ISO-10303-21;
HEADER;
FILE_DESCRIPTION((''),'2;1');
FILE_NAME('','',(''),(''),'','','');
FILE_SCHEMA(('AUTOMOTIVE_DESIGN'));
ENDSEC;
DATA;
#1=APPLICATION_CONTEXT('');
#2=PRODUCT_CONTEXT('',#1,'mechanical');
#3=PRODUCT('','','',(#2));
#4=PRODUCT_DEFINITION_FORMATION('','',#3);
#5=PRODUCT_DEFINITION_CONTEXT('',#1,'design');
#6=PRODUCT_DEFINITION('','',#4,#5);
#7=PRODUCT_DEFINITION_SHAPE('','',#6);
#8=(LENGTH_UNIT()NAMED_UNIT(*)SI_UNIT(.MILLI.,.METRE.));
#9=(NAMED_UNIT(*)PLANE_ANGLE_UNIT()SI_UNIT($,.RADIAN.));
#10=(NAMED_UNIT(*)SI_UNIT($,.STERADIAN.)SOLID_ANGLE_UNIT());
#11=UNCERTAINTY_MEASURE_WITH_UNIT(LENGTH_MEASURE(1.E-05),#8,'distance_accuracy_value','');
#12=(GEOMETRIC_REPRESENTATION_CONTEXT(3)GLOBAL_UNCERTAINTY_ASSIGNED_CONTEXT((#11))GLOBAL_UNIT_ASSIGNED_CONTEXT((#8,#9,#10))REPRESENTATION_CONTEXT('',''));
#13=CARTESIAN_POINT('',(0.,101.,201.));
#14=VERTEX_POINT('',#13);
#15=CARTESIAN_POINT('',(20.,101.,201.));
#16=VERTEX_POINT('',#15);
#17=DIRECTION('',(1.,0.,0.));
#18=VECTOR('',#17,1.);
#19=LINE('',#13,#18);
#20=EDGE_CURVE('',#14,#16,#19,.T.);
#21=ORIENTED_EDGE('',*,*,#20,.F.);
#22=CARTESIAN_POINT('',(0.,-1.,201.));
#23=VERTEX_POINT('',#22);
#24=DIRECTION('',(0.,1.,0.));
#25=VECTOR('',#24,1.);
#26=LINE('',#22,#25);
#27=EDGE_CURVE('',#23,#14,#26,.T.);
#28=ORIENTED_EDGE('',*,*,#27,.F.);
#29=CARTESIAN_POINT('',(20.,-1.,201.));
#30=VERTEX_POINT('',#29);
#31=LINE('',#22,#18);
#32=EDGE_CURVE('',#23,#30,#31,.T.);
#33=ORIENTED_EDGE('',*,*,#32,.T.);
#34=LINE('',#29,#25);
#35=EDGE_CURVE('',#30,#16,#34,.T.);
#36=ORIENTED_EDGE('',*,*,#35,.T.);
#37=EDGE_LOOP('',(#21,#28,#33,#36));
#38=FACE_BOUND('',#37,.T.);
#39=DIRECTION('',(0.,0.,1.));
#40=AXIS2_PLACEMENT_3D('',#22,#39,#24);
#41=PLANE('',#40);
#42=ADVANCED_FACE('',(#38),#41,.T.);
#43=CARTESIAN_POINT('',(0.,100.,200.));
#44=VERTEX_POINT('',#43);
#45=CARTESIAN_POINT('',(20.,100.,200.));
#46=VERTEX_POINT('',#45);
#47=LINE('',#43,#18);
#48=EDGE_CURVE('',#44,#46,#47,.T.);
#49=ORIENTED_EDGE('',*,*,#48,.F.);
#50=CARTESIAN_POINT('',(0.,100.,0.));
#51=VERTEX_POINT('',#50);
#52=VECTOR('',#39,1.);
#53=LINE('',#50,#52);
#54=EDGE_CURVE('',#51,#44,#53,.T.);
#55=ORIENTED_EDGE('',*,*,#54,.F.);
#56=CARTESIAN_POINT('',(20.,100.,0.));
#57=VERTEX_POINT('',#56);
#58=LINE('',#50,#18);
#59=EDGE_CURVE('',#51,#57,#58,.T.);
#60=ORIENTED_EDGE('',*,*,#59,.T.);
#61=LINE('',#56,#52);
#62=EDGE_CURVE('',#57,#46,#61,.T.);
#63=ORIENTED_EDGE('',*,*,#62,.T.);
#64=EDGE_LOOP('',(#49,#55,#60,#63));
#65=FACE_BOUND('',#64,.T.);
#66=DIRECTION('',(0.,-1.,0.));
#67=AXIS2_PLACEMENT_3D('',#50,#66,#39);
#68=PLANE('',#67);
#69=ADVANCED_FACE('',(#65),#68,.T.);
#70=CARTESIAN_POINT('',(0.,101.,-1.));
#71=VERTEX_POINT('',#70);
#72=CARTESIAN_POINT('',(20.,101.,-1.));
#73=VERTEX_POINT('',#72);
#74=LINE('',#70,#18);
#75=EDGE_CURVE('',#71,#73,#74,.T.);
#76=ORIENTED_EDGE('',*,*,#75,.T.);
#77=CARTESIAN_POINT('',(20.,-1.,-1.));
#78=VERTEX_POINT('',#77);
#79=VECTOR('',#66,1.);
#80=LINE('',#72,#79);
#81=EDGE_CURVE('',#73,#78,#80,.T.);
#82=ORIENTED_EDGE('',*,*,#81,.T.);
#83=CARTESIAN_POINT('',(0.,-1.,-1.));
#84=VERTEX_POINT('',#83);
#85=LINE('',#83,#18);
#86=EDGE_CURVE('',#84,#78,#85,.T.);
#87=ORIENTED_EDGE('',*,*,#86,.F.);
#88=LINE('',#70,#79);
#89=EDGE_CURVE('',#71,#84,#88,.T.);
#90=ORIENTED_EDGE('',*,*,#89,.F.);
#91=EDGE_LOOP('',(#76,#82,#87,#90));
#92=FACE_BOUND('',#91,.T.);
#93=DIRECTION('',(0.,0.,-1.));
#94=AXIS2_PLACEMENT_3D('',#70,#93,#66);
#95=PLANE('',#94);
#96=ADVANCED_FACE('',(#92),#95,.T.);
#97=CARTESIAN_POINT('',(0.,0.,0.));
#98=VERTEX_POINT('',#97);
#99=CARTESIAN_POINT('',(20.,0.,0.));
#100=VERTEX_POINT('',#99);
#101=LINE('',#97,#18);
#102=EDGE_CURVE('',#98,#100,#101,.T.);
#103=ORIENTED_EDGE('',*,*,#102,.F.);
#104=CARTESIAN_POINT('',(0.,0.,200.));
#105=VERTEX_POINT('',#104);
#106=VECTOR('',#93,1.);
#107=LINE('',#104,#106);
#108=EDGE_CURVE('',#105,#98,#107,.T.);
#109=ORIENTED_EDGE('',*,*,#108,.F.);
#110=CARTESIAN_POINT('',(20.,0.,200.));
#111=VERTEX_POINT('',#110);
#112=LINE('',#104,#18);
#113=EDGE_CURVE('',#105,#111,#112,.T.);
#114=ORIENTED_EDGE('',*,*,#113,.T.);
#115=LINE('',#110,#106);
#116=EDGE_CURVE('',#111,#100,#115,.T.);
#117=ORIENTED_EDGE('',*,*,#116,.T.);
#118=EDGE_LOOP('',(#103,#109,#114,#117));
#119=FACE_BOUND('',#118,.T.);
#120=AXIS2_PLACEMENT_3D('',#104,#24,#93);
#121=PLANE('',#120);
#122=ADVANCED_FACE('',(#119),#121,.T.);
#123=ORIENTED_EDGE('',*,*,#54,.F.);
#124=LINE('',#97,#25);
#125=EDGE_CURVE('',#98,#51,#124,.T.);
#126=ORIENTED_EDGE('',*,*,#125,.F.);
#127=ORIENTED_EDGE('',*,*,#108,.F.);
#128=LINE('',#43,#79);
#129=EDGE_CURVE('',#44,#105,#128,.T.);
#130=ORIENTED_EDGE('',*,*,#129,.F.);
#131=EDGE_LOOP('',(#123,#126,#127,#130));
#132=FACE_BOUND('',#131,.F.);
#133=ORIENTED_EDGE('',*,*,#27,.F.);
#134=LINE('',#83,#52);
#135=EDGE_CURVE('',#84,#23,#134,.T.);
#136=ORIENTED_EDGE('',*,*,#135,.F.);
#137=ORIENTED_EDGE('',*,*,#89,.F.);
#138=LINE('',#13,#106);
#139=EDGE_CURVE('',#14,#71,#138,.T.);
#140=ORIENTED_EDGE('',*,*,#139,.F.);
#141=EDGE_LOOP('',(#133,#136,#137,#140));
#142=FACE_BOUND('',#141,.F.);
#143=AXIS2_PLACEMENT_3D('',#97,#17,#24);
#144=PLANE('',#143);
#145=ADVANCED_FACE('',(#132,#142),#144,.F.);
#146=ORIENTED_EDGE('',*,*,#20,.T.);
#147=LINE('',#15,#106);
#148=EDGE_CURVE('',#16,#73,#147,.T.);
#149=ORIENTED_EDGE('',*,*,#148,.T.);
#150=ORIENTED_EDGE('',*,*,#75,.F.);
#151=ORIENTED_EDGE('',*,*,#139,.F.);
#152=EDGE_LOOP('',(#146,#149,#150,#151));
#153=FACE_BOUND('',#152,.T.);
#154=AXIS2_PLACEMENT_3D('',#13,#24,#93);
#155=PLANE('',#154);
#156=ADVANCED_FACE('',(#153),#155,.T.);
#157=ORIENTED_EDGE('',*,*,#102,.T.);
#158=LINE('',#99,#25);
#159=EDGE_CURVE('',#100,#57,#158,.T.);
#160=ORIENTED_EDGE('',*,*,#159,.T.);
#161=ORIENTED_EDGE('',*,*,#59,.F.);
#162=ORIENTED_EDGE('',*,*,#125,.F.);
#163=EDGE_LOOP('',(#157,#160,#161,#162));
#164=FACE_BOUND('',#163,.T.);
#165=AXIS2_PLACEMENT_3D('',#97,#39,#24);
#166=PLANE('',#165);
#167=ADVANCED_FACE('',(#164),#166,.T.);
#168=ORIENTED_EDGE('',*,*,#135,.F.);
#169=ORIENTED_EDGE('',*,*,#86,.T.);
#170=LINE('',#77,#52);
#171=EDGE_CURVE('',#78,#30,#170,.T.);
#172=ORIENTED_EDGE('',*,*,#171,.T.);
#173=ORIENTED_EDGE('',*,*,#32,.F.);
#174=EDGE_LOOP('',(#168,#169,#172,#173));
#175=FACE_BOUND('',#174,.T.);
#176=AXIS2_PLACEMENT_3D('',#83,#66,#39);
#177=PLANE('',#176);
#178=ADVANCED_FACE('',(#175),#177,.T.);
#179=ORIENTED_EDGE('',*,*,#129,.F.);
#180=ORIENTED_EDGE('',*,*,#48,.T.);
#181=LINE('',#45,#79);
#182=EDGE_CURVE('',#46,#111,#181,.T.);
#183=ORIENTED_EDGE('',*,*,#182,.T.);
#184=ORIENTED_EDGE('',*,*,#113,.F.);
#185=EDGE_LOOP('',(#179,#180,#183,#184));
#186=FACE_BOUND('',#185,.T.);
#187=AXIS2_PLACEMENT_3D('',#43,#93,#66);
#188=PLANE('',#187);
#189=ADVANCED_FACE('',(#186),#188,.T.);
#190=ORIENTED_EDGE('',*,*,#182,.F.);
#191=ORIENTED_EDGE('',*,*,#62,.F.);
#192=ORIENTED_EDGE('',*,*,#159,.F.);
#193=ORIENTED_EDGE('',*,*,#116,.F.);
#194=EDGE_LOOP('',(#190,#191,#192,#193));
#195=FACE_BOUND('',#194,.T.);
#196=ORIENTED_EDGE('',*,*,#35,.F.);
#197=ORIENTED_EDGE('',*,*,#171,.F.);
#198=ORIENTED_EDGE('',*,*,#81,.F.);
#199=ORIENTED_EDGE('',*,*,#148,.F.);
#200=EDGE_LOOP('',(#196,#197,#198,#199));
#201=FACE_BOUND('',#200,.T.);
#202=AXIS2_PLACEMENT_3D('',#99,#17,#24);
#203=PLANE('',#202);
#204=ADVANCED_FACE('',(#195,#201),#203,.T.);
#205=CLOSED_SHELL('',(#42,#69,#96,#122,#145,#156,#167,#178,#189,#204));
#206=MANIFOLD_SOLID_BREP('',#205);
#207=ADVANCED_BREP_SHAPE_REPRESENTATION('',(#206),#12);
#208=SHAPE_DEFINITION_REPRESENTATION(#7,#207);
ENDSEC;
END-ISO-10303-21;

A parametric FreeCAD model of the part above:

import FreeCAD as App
import Part
import Sketcher
from FreeCAD import Vector

doc = App.newDocument("Part")
body = doc.addObject("PartDesign::Body", "Body")

sketch1 = body.newObject("Sketcher::SketchObject", "Sketch")
sketch1.AttachmentSupport = (doc.getObject("YZ_Plane"), [""])
sketch1.MapMode = "FlatFace"
sketch1.addGeometry(Part.LineSegment(Vector(101, 201, 0), Vector(-1, 201, 0)), False)
sketch1.addGeometry(Part.LineSegment(Vector(-1, 201, 0), Vector(-1, -1, 0)), False)
sketch1.addGeometry(Part.LineSegment(Vector(-1, -1, 0), Vector(101, -1, 0)), False)
sketch1.addGeometry(Part.LineSegment(Vector(101, -1, 0), Vector(101, 201, 0)), False)
sketch1.addGeometry(Part.LineSegment(Vector(100, 0, 0), Vector(0, 0, 0)), False)
sketch1.addGeometry(Part.LineSegment(Vector(0, 0, 0), Vector(0, 200, 0)), False)
sketch1.addGeometry(Part.LineSegment(Vector(0, 200, 0), Vector(100, 200, 0)), False)
sketch1.addGeometry(Part.LineSegment(Vector(100, 200, 0), Vector(100, 0, 0)), False)
sketch1.addConstraint(Sketcher.Constraint("Coincident", 0, 2, 1, 1))
sketch1.addConstraint(Sketcher.Constraint("Coincident", 1, 2, 2, 1))
sketch1.addConstraint(Sketcher.Constraint("Coincident", 2, 2, 3, 1))
sketch1.addConstraint(Sketcher.Constraint("Coincident", 3, 2, 0, 1))
sketch1.addConstraint(Sketcher.Constraint("Coincident", 4, 2, 5, 1))
sketch1.addConstraint(Sketcher.Constraint("Coincident", 5, 2, 6, 1))
sketch1.addConstraint(Sketcher.Constraint("Coincident", 6, 2, 7, 1))
sketch1.addConstraint(Sketcher.Constraint("Coincident", 7, 2, 4, 1))
sketch1.addConstraint(Sketcher.Constraint("Horizontal", 0))
sketch1.addConstraint(Sketcher.Constraint("Vertical", 1))
sketch1.addConstraint(Sketcher.Constraint("Horizontal", 2))
sketch1.addConstraint(Sketcher.Constraint("Vertical", 3))
sketch1.addConstraint(Sketcher.Constraint("Horizontal", 4))
sketch1.addConstraint(Sketcher.Constraint("Vertical", 5))
sketch1.addConstraint(Sketcher.Constraint("Horizontal", 6))
sketch1.addConstraint(Sketcher.Constraint("Vertical", 7))
sketch1.addConstraint(Sketcher.Constraint("Coincident", 4, 2, -1, 1))
sketch1.addConstraint(Sketcher.Constraint("DistanceX", 4, 2, 4, 1, 100.0))
sketch1.addConstraint(Sketcher.Constraint("DistanceY", 5, 1, 5, 2, 200.0))
sketch1.addConstraint(Sketcher.Constraint("DistanceX", 0, 2, -1, 1, 1.0))
sketch1.addConstraint(Sketcher.Constraint("DistanceY", 1, 2, -1, 1, 1.0))
sketch1.addConstraint(Sketcher.Constraint("DistanceY", 5, 2, 0, 2, 1.0))
sketch1.addConstraint(Sketcher.Constraint("DistanceX", 6, 2, 3, 2, 1.0))
pad1 = body.newObject("PartDesign::Pad", "Pad")
pad1.Profile = sketch1
pad1.Length = 20

doc.recompute()
